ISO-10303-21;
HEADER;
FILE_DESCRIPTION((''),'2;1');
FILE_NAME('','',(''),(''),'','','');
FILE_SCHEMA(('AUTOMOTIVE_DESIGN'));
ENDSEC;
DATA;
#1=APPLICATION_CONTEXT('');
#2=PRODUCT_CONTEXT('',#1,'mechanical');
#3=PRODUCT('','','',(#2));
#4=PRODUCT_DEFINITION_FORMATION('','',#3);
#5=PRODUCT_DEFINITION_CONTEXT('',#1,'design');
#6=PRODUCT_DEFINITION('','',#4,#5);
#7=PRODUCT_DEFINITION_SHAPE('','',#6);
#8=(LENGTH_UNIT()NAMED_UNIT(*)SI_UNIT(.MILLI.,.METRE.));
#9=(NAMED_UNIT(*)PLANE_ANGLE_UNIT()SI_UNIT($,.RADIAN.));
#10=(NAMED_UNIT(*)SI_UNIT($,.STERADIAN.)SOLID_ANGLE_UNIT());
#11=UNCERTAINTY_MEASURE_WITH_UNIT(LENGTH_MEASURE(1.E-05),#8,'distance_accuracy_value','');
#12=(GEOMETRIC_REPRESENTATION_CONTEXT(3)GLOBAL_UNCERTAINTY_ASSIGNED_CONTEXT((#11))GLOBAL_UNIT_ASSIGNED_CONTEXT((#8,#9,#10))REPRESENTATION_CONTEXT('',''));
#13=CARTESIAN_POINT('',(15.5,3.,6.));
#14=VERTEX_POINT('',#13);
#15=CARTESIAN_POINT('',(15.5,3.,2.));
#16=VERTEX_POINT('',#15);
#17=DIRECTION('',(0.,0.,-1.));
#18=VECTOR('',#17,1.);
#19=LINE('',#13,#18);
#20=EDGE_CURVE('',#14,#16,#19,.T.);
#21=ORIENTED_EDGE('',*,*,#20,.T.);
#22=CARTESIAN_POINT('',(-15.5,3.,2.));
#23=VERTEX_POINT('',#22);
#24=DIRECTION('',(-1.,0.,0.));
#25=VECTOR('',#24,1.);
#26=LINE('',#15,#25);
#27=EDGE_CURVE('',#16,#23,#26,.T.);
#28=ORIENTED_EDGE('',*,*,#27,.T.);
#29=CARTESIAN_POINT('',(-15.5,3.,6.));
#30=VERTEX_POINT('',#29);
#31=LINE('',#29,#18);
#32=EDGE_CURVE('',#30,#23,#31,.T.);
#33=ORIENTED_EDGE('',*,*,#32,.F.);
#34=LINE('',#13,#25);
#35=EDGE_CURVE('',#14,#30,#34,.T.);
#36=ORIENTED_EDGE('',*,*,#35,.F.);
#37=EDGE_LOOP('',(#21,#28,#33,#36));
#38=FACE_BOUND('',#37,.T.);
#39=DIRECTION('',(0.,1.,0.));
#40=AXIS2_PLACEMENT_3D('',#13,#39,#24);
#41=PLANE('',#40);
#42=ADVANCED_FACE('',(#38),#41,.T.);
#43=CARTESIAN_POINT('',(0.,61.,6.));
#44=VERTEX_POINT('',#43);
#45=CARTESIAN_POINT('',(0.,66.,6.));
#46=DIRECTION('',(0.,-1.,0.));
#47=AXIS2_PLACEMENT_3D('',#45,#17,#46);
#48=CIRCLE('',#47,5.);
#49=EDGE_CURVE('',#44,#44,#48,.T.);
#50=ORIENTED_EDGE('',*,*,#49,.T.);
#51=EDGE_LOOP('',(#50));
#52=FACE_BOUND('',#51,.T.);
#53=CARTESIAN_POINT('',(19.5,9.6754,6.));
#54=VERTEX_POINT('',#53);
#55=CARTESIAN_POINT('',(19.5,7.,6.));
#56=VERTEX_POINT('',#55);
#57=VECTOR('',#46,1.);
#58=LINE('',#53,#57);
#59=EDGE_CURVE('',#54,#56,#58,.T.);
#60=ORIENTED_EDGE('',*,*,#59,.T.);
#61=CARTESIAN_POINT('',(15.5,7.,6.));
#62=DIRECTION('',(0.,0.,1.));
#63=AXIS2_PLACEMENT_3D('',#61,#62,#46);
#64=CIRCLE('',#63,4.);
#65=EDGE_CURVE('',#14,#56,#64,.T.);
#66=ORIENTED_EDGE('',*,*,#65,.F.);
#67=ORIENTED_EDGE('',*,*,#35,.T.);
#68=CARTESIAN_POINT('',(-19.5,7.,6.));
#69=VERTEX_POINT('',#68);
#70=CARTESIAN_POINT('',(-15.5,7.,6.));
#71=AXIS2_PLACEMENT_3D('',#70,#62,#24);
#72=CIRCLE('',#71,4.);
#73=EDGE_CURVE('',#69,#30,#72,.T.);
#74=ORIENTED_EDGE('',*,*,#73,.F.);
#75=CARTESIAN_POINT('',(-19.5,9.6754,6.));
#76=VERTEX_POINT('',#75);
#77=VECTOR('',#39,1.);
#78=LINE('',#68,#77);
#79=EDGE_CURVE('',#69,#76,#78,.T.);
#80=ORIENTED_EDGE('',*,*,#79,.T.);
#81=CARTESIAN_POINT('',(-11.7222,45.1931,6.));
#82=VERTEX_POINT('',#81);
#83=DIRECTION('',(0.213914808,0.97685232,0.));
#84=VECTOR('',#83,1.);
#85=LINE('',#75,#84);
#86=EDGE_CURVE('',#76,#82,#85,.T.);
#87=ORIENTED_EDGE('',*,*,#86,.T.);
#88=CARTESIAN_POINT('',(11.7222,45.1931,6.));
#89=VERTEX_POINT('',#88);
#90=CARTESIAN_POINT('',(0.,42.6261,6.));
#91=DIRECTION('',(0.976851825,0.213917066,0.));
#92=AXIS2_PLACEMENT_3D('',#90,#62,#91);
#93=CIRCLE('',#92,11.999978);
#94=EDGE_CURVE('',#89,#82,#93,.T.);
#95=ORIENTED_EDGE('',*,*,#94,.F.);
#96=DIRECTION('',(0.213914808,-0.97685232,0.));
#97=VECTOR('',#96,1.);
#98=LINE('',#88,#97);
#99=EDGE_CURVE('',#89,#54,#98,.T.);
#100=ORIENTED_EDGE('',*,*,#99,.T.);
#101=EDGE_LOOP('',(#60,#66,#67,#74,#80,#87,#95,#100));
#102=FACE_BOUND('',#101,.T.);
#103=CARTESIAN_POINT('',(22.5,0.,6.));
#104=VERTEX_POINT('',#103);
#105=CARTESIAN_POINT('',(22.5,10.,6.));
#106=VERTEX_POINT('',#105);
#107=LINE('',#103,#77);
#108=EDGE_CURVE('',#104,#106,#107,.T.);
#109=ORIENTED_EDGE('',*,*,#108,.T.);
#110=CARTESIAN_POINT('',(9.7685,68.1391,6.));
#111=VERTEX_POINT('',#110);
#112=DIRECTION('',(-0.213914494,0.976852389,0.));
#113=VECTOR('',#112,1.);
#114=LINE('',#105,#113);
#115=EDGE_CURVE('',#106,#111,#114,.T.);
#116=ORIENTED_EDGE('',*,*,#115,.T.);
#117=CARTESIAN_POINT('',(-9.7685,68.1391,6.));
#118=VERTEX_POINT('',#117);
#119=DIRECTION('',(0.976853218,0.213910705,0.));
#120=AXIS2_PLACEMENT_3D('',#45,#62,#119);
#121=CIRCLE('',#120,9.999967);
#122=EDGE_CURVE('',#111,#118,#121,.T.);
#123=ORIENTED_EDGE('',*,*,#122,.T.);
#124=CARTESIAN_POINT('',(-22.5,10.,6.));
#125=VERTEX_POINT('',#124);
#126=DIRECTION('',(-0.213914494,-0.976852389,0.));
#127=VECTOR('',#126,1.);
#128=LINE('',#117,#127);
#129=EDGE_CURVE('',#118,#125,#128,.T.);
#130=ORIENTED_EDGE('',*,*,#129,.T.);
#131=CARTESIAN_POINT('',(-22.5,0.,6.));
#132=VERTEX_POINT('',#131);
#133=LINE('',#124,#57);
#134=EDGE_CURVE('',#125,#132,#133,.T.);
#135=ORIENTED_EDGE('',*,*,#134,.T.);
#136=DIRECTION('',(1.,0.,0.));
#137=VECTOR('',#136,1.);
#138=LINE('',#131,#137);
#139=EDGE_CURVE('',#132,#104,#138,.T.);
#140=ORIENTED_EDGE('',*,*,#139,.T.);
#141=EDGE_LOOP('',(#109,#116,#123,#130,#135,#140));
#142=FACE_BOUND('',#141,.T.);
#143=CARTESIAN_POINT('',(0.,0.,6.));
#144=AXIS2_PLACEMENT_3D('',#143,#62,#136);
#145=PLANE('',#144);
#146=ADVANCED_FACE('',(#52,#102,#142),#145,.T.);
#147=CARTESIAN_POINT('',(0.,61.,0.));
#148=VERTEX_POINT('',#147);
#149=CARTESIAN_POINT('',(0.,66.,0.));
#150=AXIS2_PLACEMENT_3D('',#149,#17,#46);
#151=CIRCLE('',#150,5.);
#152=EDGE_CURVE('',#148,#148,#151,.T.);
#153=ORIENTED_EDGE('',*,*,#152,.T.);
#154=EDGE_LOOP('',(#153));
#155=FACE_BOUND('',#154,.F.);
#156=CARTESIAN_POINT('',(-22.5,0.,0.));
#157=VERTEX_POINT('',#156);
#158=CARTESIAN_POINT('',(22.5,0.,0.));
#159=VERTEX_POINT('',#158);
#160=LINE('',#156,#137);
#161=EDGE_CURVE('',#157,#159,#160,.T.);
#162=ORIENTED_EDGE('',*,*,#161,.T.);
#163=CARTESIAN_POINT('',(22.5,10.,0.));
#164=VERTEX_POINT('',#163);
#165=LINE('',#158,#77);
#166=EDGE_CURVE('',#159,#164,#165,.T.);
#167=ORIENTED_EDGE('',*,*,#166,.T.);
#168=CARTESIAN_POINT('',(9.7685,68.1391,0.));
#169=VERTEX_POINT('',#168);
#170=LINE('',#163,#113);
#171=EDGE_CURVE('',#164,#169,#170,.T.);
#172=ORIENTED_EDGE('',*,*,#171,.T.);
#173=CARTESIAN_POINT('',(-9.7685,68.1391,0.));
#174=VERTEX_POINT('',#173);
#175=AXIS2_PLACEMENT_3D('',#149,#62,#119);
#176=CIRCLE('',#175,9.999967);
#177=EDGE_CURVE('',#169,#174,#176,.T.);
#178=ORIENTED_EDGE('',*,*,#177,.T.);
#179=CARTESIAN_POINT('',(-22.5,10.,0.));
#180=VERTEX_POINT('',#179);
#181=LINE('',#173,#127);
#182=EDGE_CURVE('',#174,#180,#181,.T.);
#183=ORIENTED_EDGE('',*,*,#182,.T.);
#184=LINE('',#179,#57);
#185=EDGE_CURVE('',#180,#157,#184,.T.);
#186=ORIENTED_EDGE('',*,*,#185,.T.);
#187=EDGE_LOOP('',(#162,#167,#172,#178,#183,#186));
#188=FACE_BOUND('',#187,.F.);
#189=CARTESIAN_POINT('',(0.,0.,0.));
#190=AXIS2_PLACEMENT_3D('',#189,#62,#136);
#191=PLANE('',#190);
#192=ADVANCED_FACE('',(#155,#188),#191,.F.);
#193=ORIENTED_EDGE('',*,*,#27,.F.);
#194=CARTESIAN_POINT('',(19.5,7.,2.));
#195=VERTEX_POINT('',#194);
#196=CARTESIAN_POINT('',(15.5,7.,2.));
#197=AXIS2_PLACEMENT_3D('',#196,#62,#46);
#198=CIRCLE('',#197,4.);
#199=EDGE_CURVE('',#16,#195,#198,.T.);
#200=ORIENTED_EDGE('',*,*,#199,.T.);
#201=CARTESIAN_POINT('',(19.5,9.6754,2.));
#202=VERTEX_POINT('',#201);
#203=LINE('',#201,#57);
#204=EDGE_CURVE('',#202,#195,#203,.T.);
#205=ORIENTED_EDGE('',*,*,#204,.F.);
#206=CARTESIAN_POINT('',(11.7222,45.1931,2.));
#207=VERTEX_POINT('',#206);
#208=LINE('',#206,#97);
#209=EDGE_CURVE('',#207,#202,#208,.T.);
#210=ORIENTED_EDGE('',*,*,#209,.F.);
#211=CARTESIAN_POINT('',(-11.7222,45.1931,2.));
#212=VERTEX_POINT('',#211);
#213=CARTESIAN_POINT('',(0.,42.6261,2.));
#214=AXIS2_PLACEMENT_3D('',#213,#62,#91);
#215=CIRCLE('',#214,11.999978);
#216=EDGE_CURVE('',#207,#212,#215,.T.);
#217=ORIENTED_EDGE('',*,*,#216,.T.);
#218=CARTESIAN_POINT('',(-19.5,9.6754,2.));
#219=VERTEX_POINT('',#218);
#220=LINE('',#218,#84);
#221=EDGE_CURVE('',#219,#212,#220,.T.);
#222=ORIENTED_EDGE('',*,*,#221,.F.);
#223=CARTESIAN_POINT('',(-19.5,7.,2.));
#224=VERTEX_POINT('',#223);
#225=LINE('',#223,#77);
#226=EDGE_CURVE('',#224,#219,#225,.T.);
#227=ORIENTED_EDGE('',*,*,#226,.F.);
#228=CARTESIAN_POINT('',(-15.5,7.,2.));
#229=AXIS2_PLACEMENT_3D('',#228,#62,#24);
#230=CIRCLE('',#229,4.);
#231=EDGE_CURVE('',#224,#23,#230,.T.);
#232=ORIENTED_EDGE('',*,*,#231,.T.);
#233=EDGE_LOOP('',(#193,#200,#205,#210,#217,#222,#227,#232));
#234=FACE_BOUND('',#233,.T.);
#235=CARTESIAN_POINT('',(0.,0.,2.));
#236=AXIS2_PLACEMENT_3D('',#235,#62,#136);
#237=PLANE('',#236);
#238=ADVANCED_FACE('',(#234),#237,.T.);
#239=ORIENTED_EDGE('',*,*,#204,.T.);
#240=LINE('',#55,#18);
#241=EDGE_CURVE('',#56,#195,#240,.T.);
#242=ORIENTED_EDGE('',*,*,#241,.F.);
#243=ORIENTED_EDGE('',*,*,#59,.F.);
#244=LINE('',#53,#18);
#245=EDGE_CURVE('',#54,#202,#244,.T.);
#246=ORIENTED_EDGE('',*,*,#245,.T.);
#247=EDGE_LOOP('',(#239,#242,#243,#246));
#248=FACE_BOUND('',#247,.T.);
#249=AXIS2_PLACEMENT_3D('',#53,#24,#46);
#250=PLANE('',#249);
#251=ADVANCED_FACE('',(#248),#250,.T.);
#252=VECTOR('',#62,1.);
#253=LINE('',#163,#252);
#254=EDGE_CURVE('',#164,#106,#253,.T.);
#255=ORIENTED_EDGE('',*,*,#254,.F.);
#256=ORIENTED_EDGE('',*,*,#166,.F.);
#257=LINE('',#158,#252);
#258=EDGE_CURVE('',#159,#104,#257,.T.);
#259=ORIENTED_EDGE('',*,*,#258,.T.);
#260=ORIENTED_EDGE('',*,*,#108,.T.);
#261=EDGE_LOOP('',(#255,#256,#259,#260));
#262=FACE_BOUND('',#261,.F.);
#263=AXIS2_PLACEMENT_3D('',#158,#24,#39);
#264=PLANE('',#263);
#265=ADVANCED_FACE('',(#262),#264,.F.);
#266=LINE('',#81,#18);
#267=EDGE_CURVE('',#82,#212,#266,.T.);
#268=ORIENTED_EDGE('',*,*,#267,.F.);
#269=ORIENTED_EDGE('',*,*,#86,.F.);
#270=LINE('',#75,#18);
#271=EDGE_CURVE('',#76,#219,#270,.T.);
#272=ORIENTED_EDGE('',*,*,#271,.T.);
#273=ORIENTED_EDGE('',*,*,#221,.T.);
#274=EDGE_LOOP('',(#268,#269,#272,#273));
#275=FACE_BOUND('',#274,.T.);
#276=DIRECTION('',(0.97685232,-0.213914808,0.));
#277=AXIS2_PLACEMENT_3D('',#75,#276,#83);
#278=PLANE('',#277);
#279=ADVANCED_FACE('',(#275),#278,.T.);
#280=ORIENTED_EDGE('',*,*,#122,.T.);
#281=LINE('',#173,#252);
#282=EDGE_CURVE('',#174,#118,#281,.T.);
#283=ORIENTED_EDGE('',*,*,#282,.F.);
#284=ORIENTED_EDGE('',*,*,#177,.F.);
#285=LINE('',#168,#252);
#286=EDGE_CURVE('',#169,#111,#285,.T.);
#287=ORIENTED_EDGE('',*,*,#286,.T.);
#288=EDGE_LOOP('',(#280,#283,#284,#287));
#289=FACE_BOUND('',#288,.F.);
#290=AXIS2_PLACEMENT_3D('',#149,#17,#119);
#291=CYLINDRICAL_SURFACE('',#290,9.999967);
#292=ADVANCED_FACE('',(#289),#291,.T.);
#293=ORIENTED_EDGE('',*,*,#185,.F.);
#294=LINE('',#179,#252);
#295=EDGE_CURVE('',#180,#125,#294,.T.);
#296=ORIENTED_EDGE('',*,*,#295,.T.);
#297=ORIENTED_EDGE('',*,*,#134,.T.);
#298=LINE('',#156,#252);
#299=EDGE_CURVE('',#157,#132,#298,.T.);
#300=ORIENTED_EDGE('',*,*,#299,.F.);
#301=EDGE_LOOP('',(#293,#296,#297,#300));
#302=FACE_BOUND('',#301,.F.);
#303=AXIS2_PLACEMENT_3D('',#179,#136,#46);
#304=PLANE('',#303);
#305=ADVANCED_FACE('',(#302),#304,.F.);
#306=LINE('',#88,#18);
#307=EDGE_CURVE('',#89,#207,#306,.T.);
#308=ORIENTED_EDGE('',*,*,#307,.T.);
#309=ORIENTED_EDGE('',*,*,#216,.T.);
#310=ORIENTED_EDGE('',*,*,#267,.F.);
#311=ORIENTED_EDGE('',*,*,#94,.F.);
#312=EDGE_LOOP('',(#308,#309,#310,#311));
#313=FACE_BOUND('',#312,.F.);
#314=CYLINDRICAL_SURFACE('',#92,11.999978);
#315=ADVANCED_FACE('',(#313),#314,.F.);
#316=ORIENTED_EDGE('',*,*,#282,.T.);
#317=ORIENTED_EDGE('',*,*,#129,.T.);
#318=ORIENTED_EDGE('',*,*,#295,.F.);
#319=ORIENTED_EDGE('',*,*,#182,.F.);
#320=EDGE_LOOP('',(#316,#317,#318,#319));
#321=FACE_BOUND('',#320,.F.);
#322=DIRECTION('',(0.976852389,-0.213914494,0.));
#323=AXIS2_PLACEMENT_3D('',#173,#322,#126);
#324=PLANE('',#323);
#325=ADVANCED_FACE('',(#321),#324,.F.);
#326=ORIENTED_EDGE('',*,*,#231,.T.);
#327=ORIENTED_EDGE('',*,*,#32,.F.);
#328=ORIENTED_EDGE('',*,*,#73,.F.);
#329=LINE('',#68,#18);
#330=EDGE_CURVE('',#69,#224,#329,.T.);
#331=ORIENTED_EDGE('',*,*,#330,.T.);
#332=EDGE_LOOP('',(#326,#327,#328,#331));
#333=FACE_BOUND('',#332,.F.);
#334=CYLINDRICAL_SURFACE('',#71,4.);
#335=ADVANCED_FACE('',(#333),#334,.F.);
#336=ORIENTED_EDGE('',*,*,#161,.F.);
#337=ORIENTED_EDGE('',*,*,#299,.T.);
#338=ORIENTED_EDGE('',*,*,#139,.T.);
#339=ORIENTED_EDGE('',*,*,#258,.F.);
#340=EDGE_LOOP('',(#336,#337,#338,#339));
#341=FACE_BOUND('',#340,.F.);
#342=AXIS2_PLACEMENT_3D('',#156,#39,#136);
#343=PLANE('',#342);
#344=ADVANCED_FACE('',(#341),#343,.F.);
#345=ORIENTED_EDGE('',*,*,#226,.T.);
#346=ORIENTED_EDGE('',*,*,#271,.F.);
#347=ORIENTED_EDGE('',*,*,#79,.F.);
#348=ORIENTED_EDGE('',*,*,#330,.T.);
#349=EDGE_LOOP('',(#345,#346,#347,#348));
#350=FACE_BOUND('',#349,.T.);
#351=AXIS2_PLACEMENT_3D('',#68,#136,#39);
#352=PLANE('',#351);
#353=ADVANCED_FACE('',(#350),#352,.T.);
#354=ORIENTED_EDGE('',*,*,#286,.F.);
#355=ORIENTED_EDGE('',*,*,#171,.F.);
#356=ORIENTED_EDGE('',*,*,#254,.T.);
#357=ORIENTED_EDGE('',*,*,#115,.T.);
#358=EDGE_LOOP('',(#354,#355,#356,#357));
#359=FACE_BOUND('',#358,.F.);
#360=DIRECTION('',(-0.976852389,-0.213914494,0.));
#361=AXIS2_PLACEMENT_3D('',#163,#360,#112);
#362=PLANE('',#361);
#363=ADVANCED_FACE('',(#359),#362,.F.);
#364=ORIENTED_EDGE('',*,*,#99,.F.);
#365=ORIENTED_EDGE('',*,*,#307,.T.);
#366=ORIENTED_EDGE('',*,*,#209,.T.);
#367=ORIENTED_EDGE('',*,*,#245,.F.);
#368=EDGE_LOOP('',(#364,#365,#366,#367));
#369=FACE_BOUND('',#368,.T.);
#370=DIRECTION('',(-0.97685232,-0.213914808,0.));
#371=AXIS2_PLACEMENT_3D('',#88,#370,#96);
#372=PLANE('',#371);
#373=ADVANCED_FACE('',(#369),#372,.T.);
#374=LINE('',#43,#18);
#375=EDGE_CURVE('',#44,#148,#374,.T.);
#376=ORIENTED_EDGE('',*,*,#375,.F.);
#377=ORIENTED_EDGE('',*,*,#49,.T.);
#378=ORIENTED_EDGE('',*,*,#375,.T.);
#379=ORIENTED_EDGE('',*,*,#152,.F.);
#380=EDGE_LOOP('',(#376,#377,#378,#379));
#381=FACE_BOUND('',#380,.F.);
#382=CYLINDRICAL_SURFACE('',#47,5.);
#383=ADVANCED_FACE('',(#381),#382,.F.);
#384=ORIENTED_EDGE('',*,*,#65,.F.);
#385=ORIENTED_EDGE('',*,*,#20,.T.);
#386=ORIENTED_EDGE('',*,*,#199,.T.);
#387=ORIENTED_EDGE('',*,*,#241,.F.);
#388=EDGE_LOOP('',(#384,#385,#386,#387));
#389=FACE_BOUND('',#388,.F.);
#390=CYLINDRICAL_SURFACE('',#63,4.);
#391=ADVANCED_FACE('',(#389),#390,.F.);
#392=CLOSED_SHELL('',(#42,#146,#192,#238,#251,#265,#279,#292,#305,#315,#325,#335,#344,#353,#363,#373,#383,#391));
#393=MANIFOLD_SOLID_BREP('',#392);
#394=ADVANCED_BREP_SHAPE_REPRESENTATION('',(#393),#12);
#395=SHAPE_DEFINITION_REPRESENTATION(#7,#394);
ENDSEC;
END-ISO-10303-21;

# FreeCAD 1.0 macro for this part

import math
import FreeCAD as App
import Part
import Sketcher
from FreeCAD import Vector
Q = App.Units.Quantity

doc = App.newDocument("Part")
body = doc.addObject("PartDesign::Body", "Body")

# Sketch on XY plane
sketch1 = doc.addObject("Sketcher::SketchObject", "Sketch")
body.addObject(sketch1)
sketch1.AttachmentSupport = (doc.XY_Plane, [""])
sketch1.MapMode = "FlatFace"
sketch1.addGeometry(Part.LineSegment(Vector(-22, 10, 0), Vector(-22, 0, 0)), False)
sketch1.addGeometry(Part.LineSegment(Vector(-22, 0, 0), Vector(22, 0, 0)), False)
sketch1.addGeometry(Part.LineSegment(Vector(22, 0, 0), Vector(22, 10, 0)), False)
sketch1.addGeometry(Part.LineSegment(Vector(22, 10, 0), Vector(10, 68, 0)), False)
sketch1.addGeometry(Part.ArcOfCircle(Part.Circle(Vector(0, 66, 0), Vector(0, 0, 1), 10), math.radians(12), math.radians(168)), False)
sketch1.addGeometry(Part.LineSegment(Vector(-10, 68, 0), Vector(-22, 10, 0)), False)
sketch1.addConstraint(Sketcher.Constraint("Coincident", 0, 2, 1, 1))
sketch1.addConstraint(Sketcher.Constraint("Coincident", 1, 2, 2, 1))
sketch1.addConstraint(Sketcher.Constraint("Coincident", 2, 2, 3, 1))
sketch1.addConstraint(Sketcher.Constraint("Tangent", 3, 2, 4, 1))
sketch1.addConstraint(Sketcher.Constraint("Tangent", 4, 2, 5, 1))
sketch1.addConstraint(Sketcher.Constraint("Coincident", 5, 2, 0, 1))
sketch1.addConstraint(Sketcher.Constraint("Vertical", 0))
sketch1.addConstraint(Sketcher.Constraint("Horizontal", 1))
sketch1.addConstraint(Sketcher.Constraint("Vertical", 2))
sketch1.addConstraint(Sketcher.Constraint("Symmetric", 0, 2, 1, 2, -1, 1))
sketch1.addConstraint(Sketcher.Constraint("Symmetric", 3, 2, 4, 2, -2))
sketch1.addConstraint(Sketcher.Constraint("Radius", 4, Q("10 mm")))
sketch1.addConstraint(Sketcher.Constraint("DistanceX", 1, 1, 1, 2, Q("45 mm")))
sketch1.addConstraint(Sketcher.Constraint("DistanceY", 0, 2, 0, 1, Q("10 mm")))
sketch1.addConstraint(Sketcher.Constraint("DistanceY", -1, 1, 4, 3, Q("66 mm")))
pad1 = doc.addObject("PartDesign::Pad", "Pad")
body.addObject(pad1)
pad1.Profile = sketch1
pad1.Length = 6

# Sketch on XY plane
sketch2 = doc.addObject("Sketcher::SketchObject", "Sketch001")
body.addObject(sketch2)
sketch2.AttachmentSupport = (doc.XY_Plane, [""])
sketch2.MapMode = "FlatFace"
sketch2.AttachmentOffset = App.Placement(Vector(0, 0, 6), App.Rotation())
sketch2.addGeometry(Part.LineSegment(Vector(-11.7, 45.2, 0), Vector(-19.5, 9.7, 0)), False)
sketch2.addGeometry(Part.LineSegment(Vector(-19.5, 9.7, 0), Vector(-19.5, 7, 0)), False)
sketch2.addGeometry(Part.ArcOfCircle(Part.Circle(Vector(-15.5, 7, 0), Vector(0, 0, 1), 4), math.radians(180), math.radians(270)), False)
sketch2.addGeometry(Part.LineSegment(Vector(-15.5, 3, 0), Vector(15.5, 3, 0)), False)
sketch2.addGeometry(Part.ArcOfCircle(Part.Circle(Vector(15.5, 7, 0), Vector(0, 0, 1), 4), math.radians(-90), math.radians(0)), False)
sketch2.addGeometry(Part.LineSegment(Vector(19.5, 7, 0), Vector(19.5, 9.7, 0)), False)
sketch2.addGeometry(Part.LineSegment(Vector(19.5, 9.7, 0), Vector(11.7, 45.2, 0)), False)
sketch2.addGeometry(Part.ArcOfCircle(Part.Circle(Vector(0, 42.6, 0), Vector(0, 0, 1), 12), math.radians(12), math.radians(168)), False)
sketch2.addConstraint(Sketcher.Constraint("Coincident", 0, 2, 1, 1))
sketch2.addConstraint(Sketcher.Constraint("Tangent", 1, 2, 2, 1))
sketch2.addConstraint(Sketcher.Constraint("Tangent", 2, 2, 3, 1))
sketch2.addConstraint(Sketcher.Constraint("Tangent", 3, 2, 4, 1))
sketch2.addConstraint(Sketcher.Constraint("Tangent", 4, 2, 5, 1))
sketch2.addConstraint(Sketcher.Constraint("Coincident", 5, 2, 6, 1))
sketch2.addConstraint(Sketcher.Constraint("Tangent", 6, 2, 7, 1))
sketch2.addConstraint(Sketcher.Constraint("Tangent", 7, 2, 0, 1))
sketch2.addConstraint(Sketcher.Constraint("Vertical", 1))
sketch2.addConstraint(Sketcher.Constraint("Horizontal", 3))
sketch2.addConstraint(Sketcher.Constraint("Vertical", 5))
sketch2.addConstraint(Sketcher.Constraint("Equal", 2, 4))
sketch2.addConstraint(Sketcher.Constraint("Symmetric", 0, 2, 5, 2, -2))
sketch2.addConstraint(Sketcher.Constraint("PointOnObject", 7, 3, -2))
sketch2.addConstraint(Sketcher.Constraint("Radius", 2, Q("4 mm")))
sketch2.addConstraint(Sketcher.Constraint("Radius", 7, Q("12 mm")))
sketch2.addConstraint(Sketcher.Constraint("DistanceY", -1, 1, 2, 2, Q("3 mm")))
sketch2.addConstraint(Sketcher.Constraint("DistanceX", 3, 1, 3, 2, Q("31 mm")))
sketch2.addConstraint(Sketcher.Constraint("DistanceY", 1, 2, 1, 1, Q("2.6754 mm")))
sketch2.addConstraint(Sketcher.Constraint("DistanceY", -1, 1, 7, 3, Q("42.626 mm")))
pocket1 = doc.addObject("PartDesign::Pocket", "Pocket")
body.addObject(pocket1)
pocket1.Profile = sketch2
pocket1.Length = 4

# Sketch on XY plane
sketch3 = doc.addObject("Sketcher::SketchObject", "Sketch002")
body.addObject(sketch3)
sketch3.AttachmentSupport = (doc.XY_Plane, [""])
sketch3.MapMode = "FlatFace"
sketch3.AttachmentOffset = App.Placement(Vector(0, 0, 6), App.Rotation())
sketch3.addGeometry(Part.Circle(Vector(0, 66, 0), Vector(0, 0, 1), 5), False)
sketch3.addConstraint(Sketcher.Constraint("PointOnObject", 0, 3, -2))
sketch3.addConstraint(Sketcher.Constraint("Diameter", 0, Q("10 mm")))
sketch3.addConstraint(Sketcher.Constraint("DistanceY", -1, 1, 0, 3, Q("66 mm")))
doc.recompute()
hole = doc.addObject("PartDesign::Hole", "Hole")
body.addObject(hole)
hole.Profile = sketch3
hole.ThreadType = "None"
hole.Diameter = 10
hole.DepthType = "ThroughAll"

doc.recompute()
